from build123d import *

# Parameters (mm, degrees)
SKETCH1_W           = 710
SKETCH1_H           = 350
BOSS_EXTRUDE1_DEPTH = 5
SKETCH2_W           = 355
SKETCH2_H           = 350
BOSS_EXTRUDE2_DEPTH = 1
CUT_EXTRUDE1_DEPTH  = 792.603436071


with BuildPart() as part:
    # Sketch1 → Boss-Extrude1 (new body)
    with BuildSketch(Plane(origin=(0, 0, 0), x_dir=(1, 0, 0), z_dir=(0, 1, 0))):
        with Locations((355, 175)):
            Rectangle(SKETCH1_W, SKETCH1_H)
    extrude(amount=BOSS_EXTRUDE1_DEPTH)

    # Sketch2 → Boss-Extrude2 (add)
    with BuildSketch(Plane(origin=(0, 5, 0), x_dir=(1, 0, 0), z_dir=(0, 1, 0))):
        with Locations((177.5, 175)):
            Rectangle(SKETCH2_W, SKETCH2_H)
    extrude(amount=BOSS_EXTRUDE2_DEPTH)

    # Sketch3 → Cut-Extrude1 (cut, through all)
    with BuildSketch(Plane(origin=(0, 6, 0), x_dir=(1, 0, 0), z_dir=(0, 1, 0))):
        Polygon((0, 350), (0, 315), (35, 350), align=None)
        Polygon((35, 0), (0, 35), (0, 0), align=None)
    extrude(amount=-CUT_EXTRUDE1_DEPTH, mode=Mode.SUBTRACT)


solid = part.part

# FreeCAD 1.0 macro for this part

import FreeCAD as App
import Part
import Sketcher
from FreeCAD import Vector
Q = App.Units.Quantity


def add_polygon(sketch, points):
    """Adds a closed chain of lines whose ends are joined by coincident constraints."""
    first, n = sketch.GeometryCount, len(points)
    for a, b in zip(points, points[1:] + points[:1]):
        sketch.addGeometry(Part.LineSegment(App.Vector(*a, 0), App.Vector(*b, 0)), False)
    for i in range(n):
        sketch.addConstraint(Sketcher.Constraint("Coincident", first + i, 2, first + (i + 1) % n, 1))

doc = App.newDocument("Part")
params = doc.addObject("Spreadsheet::Sheet", "Params")
for row, (alias, value) in enumerate([
    ("sketch1_width", "710 mm"),
    ("sketch1_height", "350 mm"),
    ("pad1_length", "5 mm"),
    ("sketch2_width", "355 mm"),
    ("sketch2_height", "350 mm"),
    ("pad2_length", "1 mm"),
    ("sketch3_width", "35 mm"),
], start=1):
    params.set(f"A{row}", alias)
    params.set(f"B{row}", "=" + value)
    params.setAlias(f"B{row}", alias)

body = doc.addObject("PartDesign::Body", "Body")

# Sketch on XZ plane
sketch1 = body.newObject("Sketcher::SketchObject", "Sketch")
sketch1.AttachmentSupport = (doc.getObject("XZ_Plane"), [""])
sketch1.MapMode = "FlatFace"
add_polygon(sketch1, [(0, -350), (0, 0), (710, 0), (710, -350)])  # lines 0-3
sketch1.addConstraint([
    Sketcher.Constraint("Vertical", 0),
    Sketcher.Constraint("Horizontal", 1),
    Sketcher.Constraint("Vertical", 2),
    Sketcher.Constraint("Horizontal", 3),
    Sketcher.Constraint("Coincident", 0, 2, -1, 1),
    Sketcher.Constraint("DistanceX", 1, 1, 1, 2, Q("710 mm")),
    Sketcher.Constraint("DistanceY", 0, 1, 0, 2, Q("350 mm")),
])
sketch1.setExpression("Constraints[9]", "Params.sketch1_width")
sketch1.setExpression("Constraints[10]", "Params.sketch1_height")
pad1 = body.newObject("PartDesign::Pad", "Pad")
pad1.Profile = sketch1
pad1.setExpression("Length", "Params.pad1_length")
pad1.Reversed = True

# Sketch on XZ plane
sketch2 = body.newObject("Sketcher::SketchObject", "Sketch001")
sketch2.AttachmentSupport = (doc.getObject("XZ_Plane"), [""])
sketch2.MapMode = "FlatFace"
sketch2.AttachmentOffset = App.Placement(Vector(0, 0, -5), App.Rotation())
add_polygon(sketch2, [(0, -350), (0, 0), (355, 0), (355, -350)])  # lines 0-3
sketch2.addConstraint([
    Sketcher.Constraint("Vertical", 0),
    Sketcher.Constraint("Horizontal", 1),
    Sketcher.Constraint("Vertical", 2),
    Sketcher.Constraint("Horizontal", 3),
    Sketcher.Constraint("Coincident", 0, 2, -1, 1),
    Sketcher.Constraint("DistanceX", 1, 1, 1, 2, Q("355 mm")),
    Sketcher.Constraint("DistanceY", 0, 1, 0, 2, Q("350 mm")),
])
sketch2.setExpression("Constraints[9]", "Params.sketch2_width")
sketch2.setExpression("Constraints[10]", "Params.sketch2_height")
pad2 = body.newObject("PartDesign::Pad", "Pad001")
pad2.Profile = sketch2
pad2.setExpression("Length", "Params.pad2_length")
pad2.Reversed = True

# Sketch on XZ plane
sketch3 = body.newObject("Sketcher::SketchObject", "Sketch002")
sketch3.AttachmentSupport = (doc.getObject("XZ_Plane"), [""])
sketch3.MapMode = "FlatFace"
sketch3.AttachmentOffset = App.Placement(Vector(0, 0, -6), App.Rotation())
add_polygon(sketch3, [(0, -350), (0, -315), (35, -350)])  # lines 0-2
add_polygon(sketch3, [(35, 0), (0, -35), (0, 0)])  # lines 3-5
sketch3.addConstraint([
    Sketcher.Constraint("Vertical", 0),
    Sketcher.Constraint("Horizontal", 2),
    Sketcher.Constraint("Vertical", 4),
    Sketcher.Constraint("Horizontal", 5),
    Sketcher.Constraint("Coincident", 4, 2, -1, 1),
    Sketcher.Constraint("PointOnObject", 0, 2, -2),
    Sketcher.Constraint("Perpendicular", 1, 3),
    Sketcher.Constraint("Vertical", 1, 2, 5, 2),
    Sketcher.Constraint("Equal", 5, 0),
    Sketcher.Constraint("DistanceX", 2, 2, 2, 1, Q("35 mm")),
    Sketcher.Constraint("DistanceY", 0, 2, -1, 1, Q("315 mm")),
])
sketch3.setExpression("Constraints[15]", "Params.sketch3_width")
pocket1 = body.newObject("PartDesign::Pocket", "Pocket")
pocket1.Profile = sketch3
pocket1.Type = "ThroughAll"
pocket1.Reversed = True

doc.recompute()
